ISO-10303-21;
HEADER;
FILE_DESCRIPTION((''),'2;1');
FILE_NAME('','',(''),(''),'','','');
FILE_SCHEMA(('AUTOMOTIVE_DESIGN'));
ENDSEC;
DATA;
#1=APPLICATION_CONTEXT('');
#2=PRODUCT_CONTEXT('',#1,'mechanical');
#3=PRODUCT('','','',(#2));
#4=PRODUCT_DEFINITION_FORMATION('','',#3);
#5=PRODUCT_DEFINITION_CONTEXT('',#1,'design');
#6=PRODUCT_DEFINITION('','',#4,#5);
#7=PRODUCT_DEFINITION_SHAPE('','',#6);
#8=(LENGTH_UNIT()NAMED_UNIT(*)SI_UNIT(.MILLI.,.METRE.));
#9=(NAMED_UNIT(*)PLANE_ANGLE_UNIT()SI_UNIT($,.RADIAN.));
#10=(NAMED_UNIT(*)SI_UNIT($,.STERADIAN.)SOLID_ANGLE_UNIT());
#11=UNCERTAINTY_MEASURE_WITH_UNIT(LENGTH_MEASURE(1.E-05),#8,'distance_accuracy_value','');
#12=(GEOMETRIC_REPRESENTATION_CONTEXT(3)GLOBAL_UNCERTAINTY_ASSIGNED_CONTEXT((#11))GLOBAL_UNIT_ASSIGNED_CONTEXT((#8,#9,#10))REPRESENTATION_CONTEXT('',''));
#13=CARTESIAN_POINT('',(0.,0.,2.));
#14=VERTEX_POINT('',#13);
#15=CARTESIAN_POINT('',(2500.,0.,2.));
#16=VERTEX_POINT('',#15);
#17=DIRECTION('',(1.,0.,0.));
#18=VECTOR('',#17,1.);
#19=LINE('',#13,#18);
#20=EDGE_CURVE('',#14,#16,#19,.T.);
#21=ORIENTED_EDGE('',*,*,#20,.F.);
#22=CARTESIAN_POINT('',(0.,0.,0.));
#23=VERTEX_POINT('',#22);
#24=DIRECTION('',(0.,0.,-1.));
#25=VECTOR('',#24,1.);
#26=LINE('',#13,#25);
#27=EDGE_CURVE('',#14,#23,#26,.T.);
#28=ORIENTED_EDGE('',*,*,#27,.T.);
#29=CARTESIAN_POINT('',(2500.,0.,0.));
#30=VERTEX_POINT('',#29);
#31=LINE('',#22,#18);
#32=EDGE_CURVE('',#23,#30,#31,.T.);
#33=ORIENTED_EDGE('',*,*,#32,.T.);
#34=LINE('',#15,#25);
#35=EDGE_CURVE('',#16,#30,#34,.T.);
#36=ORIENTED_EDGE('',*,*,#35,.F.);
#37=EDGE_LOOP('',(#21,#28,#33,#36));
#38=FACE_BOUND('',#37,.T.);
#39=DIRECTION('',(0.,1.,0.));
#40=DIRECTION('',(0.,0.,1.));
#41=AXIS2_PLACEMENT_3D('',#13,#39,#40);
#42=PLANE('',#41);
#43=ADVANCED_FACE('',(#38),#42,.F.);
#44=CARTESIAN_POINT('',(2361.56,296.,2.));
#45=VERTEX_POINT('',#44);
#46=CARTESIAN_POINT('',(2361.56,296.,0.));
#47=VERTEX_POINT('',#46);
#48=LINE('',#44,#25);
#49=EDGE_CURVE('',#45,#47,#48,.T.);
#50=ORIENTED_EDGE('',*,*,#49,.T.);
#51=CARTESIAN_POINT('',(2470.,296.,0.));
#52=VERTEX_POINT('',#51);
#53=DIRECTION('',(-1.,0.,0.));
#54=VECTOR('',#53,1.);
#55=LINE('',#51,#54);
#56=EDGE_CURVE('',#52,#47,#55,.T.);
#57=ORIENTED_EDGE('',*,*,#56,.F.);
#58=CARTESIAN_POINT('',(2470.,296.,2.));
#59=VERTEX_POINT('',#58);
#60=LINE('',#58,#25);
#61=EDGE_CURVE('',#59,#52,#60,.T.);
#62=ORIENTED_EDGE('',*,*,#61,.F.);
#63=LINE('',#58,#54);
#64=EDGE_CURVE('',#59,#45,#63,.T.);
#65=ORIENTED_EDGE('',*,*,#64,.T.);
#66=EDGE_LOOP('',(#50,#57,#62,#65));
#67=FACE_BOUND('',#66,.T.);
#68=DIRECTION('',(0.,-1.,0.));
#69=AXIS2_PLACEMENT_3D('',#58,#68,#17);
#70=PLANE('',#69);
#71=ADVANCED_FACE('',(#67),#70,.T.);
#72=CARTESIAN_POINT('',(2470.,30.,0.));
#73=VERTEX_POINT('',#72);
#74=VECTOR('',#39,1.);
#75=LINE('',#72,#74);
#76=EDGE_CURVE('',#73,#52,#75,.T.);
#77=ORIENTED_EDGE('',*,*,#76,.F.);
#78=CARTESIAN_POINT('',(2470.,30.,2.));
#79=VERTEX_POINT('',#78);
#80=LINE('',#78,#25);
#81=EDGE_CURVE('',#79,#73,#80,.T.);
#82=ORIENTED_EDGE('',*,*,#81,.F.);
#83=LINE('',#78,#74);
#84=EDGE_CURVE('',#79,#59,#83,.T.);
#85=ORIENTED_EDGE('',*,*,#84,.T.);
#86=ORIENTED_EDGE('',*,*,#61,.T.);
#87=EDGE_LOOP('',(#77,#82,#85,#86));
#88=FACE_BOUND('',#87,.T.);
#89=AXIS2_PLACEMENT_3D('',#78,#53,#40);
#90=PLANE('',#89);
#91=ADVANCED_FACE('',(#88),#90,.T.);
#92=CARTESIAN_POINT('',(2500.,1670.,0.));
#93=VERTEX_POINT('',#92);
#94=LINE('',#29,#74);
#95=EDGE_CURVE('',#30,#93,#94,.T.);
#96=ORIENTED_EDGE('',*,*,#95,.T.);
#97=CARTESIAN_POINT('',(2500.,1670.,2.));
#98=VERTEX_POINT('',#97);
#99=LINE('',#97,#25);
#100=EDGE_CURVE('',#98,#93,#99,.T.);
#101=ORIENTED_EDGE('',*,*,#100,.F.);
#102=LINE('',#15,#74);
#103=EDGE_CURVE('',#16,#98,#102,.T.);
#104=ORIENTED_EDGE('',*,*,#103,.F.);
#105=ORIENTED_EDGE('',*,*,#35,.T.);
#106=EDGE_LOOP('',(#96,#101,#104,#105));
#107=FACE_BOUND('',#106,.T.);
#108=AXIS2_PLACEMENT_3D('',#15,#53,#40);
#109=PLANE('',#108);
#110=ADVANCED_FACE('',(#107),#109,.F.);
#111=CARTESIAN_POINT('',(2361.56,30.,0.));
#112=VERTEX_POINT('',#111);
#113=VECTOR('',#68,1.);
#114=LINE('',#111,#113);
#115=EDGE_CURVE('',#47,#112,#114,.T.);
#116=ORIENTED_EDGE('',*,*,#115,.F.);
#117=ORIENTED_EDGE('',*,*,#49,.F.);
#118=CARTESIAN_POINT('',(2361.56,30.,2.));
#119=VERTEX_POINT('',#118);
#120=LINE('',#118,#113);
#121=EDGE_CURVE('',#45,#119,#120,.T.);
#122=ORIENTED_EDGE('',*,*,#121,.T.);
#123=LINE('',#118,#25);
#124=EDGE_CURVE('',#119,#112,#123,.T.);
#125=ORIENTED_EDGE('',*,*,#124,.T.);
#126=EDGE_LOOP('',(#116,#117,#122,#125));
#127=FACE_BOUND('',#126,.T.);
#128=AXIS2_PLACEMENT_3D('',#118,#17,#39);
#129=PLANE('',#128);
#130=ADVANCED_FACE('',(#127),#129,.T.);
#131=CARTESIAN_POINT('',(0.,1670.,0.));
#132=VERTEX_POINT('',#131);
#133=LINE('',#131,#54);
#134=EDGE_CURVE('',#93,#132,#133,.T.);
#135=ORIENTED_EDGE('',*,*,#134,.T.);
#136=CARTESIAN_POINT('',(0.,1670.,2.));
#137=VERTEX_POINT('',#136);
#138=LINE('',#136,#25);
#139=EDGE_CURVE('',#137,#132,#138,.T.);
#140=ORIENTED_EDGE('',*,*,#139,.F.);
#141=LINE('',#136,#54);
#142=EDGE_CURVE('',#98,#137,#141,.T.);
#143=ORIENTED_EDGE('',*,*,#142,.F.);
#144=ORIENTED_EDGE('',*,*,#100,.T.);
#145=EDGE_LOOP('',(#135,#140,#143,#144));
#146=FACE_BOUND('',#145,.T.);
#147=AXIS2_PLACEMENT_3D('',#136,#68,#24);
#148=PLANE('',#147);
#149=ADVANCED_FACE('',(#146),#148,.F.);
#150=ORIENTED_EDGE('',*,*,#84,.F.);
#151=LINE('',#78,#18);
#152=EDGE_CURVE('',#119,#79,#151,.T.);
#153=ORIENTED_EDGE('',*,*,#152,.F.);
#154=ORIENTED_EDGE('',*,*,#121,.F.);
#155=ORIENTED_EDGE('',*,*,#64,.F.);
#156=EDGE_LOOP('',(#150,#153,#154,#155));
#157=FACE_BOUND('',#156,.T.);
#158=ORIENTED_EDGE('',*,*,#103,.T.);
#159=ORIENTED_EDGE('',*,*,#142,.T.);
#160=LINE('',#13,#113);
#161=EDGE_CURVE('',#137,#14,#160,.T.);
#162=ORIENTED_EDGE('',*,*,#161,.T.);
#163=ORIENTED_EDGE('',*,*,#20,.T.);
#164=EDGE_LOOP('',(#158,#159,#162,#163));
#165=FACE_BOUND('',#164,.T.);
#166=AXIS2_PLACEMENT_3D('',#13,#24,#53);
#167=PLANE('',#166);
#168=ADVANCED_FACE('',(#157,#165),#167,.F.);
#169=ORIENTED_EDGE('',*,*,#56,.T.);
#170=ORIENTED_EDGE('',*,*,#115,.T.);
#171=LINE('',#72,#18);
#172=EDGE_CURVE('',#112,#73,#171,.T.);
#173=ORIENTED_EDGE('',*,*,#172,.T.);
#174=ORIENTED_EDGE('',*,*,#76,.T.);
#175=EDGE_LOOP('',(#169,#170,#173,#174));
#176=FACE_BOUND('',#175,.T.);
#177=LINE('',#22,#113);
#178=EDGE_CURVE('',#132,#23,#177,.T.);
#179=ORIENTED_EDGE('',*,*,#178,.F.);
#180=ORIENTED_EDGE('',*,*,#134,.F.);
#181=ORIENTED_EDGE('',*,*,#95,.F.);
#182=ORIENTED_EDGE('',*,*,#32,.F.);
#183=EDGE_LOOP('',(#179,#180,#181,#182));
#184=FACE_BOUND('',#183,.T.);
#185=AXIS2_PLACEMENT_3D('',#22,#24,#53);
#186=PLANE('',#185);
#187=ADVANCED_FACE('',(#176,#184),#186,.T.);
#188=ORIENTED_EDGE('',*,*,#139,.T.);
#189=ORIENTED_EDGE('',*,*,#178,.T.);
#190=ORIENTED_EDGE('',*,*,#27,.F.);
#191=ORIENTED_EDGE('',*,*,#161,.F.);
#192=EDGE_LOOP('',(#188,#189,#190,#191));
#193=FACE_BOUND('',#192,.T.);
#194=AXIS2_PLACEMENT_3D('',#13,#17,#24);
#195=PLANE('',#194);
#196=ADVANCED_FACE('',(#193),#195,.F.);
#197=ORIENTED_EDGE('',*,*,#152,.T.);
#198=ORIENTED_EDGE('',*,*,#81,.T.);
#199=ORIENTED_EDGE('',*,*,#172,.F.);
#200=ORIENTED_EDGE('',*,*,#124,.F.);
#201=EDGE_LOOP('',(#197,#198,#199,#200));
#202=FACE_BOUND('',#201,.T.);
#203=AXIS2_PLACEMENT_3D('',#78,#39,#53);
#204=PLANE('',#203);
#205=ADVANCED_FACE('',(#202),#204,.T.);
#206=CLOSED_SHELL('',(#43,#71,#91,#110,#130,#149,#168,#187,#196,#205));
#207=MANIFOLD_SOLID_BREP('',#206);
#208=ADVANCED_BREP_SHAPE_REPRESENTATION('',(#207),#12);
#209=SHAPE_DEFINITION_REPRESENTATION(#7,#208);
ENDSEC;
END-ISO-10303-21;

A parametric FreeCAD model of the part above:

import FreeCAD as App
import Part
import Sketcher
from FreeCAD import Vector
Q = App.Units.Quantity


def add_polygon(sketch, points):
    """Adds a closed chain of lines whose ends are joined by coincident constraints."""
    first, n = sketch.GeometryCount, len(points)
    for a, b in zip(points, points[1:] + points[:1]):
        sketch.addGeometry(Part.LineSegment(App.Vector(*a, 0), App.Vector(*b, 0)), False)
    for i in range(n):
        sketch.addConstraint(Sketcher.Constraint("Coincident", first + i, 2, first + (i + 1) % n, 1))

doc = App.newDocument("Part")
body = doc.addObject("PartDesign::Body", "Body")

sketch1 = body.newObject("Sketcher::SketchObject", "Sketch")
sketch1.AttachmentSupport = (doc.getObject("XY_Plane"), [""])
sketch1.MapMode = "FlatFace"
add_polygon(sketch1, [(0, 1670), (0, 0), (2500, 0), (2500, 1670)])
add_polygon(sketch1, [(2470, 30), (2362, 30), (2362, 296), (2470, 296)])
sketch1.addConstraint([
    Sketcher.Constraint("Vertical", 0),
    Sketcher.Constraint("Horizontal", 1),
    Sketcher.Constraint("Vertical", 2),
    Sketcher.Constraint("Horizontal", 3),
    Sketcher.Constraint("Horizontal", 4),
    Sketcher.Constraint("Vertical", 5),
    Sketcher.Constraint("Horizontal", 6),
    Sketcher.Constraint("Vertical", 7),
    Sketcher.Constraint("Coincident", 0, 2, -1, 1),
    Sketcher.Constraint("DistanceX", 1, 1, 1, 2, Q("2500 mm")),
    Sketcher.Constraint("DistanceY", 0, 2, 0, 1, Q("1670 mm")),
    Sketcher.Constraint("DistanceY", 5, 1, 5, 2, Q("266 mm")),
    Sketcher.Constraint("DistanceY", -1, 1, 4, 2, Q("30 mm")),
    Sketcher.Constraint("DistanceX", -1, 1, 6, 2, Q("2470 mm")),
    Sketcher.Constraint("DistanceX", 4, 2, 4, 1, Q("108.44 mm")),
])
pad1 = body.newObject("PartDesign::Pad", "Pad")
pad1.Profile = sketch1
pad1.Length = 2

doc.recompute()
